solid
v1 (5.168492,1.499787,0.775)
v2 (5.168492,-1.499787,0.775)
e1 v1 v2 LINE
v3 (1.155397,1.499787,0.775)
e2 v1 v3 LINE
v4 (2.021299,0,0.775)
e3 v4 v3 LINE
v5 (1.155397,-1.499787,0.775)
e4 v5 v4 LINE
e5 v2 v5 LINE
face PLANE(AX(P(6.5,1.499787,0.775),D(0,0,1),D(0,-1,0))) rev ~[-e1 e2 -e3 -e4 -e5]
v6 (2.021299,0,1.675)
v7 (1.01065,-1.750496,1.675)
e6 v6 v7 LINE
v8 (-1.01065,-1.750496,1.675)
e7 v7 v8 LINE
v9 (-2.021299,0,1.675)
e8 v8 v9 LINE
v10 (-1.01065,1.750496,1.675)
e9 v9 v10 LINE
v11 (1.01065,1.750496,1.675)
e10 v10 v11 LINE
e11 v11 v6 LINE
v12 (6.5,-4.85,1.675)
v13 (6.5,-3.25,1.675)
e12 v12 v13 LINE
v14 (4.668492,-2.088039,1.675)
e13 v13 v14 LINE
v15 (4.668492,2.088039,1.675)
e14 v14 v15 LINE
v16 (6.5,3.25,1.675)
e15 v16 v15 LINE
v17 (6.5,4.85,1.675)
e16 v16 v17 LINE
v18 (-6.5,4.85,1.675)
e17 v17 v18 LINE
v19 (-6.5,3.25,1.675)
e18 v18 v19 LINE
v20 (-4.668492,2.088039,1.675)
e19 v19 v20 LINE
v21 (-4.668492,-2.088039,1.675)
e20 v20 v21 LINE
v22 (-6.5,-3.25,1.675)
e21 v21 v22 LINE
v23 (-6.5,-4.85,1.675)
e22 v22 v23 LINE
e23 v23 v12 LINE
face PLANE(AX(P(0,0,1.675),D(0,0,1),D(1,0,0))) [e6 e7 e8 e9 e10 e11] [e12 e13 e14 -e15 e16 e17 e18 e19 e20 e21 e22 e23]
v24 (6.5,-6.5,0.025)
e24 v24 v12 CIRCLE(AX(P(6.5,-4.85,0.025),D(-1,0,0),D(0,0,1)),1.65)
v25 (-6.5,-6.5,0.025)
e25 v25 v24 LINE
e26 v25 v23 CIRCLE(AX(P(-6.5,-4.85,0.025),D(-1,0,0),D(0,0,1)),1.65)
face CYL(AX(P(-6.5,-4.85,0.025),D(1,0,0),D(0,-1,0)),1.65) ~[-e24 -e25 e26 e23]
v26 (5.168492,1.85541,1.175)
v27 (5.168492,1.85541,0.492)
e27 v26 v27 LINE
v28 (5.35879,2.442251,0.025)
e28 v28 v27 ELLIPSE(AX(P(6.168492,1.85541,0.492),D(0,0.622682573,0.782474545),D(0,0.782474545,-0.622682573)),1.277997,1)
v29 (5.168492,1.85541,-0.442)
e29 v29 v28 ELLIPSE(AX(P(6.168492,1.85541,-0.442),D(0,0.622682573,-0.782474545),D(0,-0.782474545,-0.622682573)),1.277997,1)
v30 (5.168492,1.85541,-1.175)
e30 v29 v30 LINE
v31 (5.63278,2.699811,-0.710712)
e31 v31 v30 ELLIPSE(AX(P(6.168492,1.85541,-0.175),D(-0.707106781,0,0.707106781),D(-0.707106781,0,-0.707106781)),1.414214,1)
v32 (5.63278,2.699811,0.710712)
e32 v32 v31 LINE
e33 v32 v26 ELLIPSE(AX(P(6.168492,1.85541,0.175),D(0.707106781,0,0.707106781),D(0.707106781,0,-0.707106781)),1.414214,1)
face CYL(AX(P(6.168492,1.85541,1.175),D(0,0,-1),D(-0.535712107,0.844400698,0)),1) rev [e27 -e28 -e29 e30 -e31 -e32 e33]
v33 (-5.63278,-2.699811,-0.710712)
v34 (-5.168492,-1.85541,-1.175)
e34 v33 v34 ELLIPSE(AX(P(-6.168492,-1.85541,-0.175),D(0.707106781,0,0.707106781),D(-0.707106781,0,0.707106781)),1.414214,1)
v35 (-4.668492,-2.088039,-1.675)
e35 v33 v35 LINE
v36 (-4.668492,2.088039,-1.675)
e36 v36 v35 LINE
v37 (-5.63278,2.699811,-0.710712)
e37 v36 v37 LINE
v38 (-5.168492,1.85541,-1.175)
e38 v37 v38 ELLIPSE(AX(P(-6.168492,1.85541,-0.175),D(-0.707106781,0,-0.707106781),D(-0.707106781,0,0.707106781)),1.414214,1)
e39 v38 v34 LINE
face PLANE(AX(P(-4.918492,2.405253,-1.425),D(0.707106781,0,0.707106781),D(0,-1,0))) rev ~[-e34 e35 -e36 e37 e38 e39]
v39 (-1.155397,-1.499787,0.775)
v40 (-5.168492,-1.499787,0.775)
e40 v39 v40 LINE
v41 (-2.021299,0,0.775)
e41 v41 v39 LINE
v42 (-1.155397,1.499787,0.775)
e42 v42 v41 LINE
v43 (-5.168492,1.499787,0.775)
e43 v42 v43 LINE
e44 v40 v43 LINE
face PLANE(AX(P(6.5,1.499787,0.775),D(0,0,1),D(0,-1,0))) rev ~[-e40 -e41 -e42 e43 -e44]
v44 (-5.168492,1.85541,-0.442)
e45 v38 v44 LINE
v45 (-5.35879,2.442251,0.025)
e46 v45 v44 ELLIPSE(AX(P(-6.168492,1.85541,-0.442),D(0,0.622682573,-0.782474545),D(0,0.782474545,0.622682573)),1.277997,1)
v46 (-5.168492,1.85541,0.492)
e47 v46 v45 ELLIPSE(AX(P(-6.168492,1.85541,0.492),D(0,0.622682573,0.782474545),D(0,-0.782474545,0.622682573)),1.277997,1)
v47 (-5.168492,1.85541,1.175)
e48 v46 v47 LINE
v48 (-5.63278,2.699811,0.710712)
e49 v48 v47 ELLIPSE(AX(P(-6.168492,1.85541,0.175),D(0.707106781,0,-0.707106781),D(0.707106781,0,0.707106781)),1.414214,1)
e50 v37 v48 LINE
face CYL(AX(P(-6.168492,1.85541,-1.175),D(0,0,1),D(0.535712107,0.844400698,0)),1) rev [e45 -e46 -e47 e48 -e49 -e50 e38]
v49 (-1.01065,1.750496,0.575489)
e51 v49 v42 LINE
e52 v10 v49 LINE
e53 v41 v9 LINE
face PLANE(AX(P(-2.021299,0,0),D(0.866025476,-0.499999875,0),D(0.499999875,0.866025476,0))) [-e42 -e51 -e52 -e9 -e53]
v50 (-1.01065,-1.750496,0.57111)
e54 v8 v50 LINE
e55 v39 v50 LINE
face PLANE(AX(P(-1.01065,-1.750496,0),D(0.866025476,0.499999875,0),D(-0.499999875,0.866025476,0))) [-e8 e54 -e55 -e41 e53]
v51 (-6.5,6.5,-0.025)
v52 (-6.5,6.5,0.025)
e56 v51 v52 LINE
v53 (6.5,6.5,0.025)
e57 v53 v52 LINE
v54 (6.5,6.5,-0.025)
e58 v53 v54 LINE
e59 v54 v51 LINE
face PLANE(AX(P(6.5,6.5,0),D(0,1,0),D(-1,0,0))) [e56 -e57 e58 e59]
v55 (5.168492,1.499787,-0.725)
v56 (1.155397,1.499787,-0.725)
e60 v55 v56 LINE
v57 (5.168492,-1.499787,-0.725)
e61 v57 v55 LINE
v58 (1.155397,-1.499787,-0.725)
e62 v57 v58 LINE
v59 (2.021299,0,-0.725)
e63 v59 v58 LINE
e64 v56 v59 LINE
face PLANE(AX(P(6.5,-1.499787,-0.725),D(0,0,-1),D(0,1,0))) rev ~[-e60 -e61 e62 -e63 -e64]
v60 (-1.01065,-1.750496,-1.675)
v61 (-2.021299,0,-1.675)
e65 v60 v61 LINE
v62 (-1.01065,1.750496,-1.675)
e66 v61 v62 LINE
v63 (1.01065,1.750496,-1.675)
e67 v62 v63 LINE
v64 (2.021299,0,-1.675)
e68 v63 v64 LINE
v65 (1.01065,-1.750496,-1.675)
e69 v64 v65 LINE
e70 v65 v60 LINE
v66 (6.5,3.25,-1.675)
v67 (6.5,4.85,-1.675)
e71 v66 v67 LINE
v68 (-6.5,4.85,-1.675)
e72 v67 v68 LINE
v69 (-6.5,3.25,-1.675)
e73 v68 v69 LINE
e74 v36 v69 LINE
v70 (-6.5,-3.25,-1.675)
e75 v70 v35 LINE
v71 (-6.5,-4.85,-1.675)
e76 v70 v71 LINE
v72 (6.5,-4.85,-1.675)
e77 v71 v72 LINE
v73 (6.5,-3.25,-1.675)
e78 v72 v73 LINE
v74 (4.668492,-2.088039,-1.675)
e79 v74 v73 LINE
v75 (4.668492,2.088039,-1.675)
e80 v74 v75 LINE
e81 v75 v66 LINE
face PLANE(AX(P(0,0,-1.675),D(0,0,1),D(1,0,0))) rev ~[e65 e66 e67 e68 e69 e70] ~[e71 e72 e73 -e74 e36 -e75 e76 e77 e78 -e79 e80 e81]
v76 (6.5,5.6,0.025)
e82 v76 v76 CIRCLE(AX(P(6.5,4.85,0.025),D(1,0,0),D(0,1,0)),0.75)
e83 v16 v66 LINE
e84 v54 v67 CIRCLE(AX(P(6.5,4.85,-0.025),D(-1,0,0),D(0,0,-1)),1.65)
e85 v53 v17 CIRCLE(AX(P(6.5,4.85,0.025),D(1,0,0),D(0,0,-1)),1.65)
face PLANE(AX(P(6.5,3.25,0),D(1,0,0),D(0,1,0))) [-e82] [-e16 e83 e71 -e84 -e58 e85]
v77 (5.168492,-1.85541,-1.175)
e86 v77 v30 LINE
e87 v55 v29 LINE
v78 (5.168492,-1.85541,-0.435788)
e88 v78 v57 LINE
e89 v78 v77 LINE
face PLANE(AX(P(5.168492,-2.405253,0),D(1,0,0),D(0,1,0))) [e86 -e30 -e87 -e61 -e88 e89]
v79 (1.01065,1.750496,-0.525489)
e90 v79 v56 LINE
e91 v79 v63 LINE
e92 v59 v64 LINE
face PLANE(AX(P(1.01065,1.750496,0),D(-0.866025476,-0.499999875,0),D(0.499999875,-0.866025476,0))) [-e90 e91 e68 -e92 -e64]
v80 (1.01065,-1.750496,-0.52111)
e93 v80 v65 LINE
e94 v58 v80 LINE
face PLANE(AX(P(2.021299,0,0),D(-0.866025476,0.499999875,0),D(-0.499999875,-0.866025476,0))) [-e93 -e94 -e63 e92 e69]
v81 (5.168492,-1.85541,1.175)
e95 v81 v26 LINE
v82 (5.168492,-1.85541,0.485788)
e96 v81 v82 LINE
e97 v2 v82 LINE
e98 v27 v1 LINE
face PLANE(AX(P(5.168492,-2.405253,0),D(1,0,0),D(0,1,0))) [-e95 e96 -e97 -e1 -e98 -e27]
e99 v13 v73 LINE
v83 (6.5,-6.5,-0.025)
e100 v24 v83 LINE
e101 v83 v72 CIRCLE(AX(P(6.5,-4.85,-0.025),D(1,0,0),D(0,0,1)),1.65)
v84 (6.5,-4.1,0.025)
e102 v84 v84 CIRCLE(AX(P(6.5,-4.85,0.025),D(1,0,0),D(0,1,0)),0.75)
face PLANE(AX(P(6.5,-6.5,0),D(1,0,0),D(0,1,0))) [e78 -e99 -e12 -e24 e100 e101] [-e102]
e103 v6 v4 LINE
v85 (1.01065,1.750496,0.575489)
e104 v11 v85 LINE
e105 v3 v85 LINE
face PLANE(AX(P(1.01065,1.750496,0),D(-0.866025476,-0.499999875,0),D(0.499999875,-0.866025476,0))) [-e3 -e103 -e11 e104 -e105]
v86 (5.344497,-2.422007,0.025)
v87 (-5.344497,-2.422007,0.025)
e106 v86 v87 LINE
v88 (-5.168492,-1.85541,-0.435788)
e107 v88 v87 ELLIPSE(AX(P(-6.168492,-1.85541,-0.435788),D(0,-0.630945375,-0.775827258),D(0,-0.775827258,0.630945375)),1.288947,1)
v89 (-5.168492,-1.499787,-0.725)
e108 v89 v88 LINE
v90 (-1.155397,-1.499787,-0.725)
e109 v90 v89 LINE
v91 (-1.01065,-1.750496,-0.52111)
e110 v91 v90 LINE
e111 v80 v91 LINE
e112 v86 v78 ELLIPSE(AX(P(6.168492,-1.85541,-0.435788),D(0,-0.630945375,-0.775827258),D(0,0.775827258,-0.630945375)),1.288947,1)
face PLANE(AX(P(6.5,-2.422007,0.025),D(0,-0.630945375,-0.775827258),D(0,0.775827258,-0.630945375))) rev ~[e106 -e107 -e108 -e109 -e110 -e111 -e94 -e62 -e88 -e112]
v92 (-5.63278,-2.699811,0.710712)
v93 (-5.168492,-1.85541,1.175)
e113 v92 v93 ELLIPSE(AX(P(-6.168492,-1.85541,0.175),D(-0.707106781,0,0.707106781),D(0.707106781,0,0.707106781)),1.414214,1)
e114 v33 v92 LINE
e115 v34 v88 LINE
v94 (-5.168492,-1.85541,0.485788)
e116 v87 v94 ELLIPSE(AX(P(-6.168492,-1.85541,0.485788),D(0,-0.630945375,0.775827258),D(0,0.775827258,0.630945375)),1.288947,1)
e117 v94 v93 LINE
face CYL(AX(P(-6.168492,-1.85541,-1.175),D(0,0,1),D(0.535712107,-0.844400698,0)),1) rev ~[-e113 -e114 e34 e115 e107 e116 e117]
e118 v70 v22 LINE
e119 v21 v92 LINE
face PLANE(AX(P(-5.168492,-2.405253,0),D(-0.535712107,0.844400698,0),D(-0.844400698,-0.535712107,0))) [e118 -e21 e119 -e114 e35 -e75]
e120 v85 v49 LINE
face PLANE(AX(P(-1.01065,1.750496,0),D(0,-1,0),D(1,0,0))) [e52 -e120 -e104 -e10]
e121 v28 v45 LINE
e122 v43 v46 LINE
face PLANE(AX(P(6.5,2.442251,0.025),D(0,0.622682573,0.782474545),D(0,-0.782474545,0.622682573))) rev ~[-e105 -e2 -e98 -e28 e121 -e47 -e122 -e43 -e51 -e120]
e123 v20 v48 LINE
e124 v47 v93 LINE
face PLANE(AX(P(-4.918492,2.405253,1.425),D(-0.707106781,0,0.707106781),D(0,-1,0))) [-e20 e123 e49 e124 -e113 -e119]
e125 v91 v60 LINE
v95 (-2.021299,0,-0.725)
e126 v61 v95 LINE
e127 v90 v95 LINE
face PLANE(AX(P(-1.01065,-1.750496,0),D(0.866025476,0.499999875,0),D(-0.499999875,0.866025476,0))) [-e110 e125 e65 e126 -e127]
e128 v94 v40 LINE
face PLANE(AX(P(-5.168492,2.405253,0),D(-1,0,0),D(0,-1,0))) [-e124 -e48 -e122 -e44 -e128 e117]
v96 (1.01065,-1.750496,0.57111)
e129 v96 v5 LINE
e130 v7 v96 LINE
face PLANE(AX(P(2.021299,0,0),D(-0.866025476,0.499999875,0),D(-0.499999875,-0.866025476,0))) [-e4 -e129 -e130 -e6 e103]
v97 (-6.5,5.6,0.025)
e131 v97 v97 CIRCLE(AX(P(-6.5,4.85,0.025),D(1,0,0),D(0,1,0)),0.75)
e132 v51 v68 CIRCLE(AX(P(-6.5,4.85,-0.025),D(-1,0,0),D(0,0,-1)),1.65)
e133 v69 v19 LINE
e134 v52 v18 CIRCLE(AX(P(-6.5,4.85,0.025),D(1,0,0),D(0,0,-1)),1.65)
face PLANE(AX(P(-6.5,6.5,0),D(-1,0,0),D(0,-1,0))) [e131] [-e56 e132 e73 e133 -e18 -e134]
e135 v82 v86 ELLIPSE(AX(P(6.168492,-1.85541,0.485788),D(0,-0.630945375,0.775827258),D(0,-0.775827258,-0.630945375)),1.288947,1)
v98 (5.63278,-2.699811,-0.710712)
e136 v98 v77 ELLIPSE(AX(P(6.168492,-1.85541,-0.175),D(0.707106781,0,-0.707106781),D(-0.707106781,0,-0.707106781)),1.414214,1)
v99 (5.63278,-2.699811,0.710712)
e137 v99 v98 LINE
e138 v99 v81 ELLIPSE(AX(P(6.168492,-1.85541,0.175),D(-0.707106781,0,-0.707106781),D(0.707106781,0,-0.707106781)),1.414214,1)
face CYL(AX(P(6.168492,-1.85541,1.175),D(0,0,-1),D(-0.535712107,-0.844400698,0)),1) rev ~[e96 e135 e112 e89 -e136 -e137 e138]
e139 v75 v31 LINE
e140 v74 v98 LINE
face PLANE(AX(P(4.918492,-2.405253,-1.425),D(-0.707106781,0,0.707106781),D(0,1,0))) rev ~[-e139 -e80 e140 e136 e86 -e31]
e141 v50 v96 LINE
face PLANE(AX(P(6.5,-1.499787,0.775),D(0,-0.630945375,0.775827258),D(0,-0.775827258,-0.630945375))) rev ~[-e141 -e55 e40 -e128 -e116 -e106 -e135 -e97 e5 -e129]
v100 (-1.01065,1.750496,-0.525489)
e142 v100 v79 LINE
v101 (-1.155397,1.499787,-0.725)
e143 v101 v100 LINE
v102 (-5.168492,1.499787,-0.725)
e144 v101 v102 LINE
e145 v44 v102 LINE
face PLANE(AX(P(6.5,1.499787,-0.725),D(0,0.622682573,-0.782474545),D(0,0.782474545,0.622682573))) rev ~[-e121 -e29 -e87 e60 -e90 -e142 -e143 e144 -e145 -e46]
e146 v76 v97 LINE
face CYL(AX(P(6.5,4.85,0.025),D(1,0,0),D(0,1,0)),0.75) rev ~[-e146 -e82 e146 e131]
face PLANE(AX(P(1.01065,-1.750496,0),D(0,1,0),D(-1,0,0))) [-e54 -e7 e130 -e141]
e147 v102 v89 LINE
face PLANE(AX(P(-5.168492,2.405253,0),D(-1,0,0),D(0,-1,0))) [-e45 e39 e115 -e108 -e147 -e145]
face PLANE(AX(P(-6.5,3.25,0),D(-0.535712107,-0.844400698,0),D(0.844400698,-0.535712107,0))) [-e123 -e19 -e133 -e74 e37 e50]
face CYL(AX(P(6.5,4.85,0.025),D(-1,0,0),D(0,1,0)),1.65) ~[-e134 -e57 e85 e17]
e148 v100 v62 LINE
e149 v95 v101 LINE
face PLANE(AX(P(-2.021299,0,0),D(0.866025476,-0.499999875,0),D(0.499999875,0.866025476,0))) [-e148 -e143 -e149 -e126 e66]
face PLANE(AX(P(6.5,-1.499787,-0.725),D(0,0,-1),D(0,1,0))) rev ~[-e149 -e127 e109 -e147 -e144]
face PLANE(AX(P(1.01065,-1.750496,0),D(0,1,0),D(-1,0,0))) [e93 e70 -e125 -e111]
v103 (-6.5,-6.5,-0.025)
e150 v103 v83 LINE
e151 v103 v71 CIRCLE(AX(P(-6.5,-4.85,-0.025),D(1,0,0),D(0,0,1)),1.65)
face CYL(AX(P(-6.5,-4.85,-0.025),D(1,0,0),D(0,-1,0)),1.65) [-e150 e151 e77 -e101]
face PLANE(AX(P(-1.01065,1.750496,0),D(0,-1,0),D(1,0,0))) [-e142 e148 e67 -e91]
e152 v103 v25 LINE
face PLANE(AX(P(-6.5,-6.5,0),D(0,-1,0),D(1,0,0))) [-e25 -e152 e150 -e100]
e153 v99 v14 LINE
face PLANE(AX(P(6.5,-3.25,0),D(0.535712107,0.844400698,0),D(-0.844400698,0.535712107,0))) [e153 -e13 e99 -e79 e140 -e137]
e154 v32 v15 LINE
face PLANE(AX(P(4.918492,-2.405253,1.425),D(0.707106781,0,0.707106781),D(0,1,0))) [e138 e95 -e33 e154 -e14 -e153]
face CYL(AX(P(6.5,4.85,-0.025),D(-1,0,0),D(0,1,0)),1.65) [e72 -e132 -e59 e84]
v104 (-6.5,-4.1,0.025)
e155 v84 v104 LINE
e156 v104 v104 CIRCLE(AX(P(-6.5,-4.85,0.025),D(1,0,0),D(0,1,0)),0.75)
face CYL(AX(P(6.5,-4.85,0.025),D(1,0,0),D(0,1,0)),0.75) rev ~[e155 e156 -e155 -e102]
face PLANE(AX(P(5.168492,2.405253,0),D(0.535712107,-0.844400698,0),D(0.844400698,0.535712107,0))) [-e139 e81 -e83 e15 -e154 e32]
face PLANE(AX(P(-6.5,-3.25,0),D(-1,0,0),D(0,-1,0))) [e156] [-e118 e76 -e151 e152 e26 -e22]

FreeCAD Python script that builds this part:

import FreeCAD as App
import Part
import Sketcher

V = App.Vector
Q = App.Units.Quantity


def edges_at(feature, points):
    """Names of the edges that pass closest to the given points."""
    edges = feature.Shape.Edges
    near = lambda p: min(range(len(edges)), key=lambda i: edges[i].distToShape(Part.Vertex(*p))[0])
    return sorted({f"Edge{near(p) + 1}" for p in points})

doc = App.newDocument("Part")
params = doc.addObject("Spreadsheet::Sheet", "Params")
for row, (alias, value) in enumerate([
    ("sketch1_width", "13 mm"),
    ("sketch1_height", "3.25 mm"),
    ("pad1_length", "3.35 mm"),
    ("chamfer_size", "0.5 mm"),
    ("fillet_radius", "1.65 mm"),
    ("fillet2_radius", "1 mm"),
    ("sketch2_diameter", "1.5 mm"),
], start=1):
    params.set(f"A{row}", alias)
    params.set(f"B{row}", "=" + value)
    params.setAlias(f"B{row}", alias)

body = doc.addObject("PartDesign::Body", "Body")

sketch1 = doc.addObject("Sketcher::SketchObject", "Sketch")
body.addObject(sketch1)
sketch1.AttachmentSupport = (doc.XY_Plane, [""])
sketch1.MapMode = "FlatFace"
sketch1.addGeometry(Part.LineSegment(V(6.5, 6.5, 0), V(-6.5, 6.5, 0)), False)
sketch1.addGeometry(Part.LineSegment(V(-6.5, 6.5, 0), V(-6.5, 3.2, 0)), False)
sketch1.addGeometry(Part.LineSegment(V(-6.5, 3.2, 0), V(-5.2, 2.4, 0)), False)
sketch1.addGeometry(Part.LineSegment(V(-5.2, 2.4, 0), V(-5.2, -2.4, 0)), False)
sketch1.addGeometry(Part.LineSegment(V(-5.2, -2.4, 0), V(-6.5, -3.2, 0)), False)
sketch1.addGeometry(Part.LineSegment(V(-6.5, -3.2, 0), V(-6.5, -6.5, 0)), False)
sketch1.addGeometry(Part.LineSegment(V(-6.5, -6.5, 0), V(6.5, -6.5, 0)), False)
sketch1.addGeometry(Part.LineSegment(V(6.5, -6.5, 0), V(6.5, -3.2, 0)), False)
sketch1.addGeometry(Part.LineSegment(V(6.5, -3.2, 0), V(5.2, -2.4, 0)), False)
sketch1.addGeometry(Part.LineSegment(V(5.2, -2.4, 0), V(5.2, 2.4, 0)), False)
sketch1.addGeometry(Part.LineSegment(V(5.2, 2.4, 0), V(6.5, 3.2, 0)), False)
sketch1.addGeometry(Part.LineSegment(V(6.5, 3.2, 0), V(6.5, 6.5, 0)), False)
sketch1.addGeometry(Part.LineSegment(V(-1, -1.8, 0), V(-2, 0, 0)), False)
sketch1.addGeometry(Part.LineSegment(V(-2, 0, 0), V(-1, 1.8, 0)), False)
sketch1.addGeometry(Part.LineSegment(V(-1, 1.8, 0), V(1, 1.8, 0)), False)
sketch1.addGeometry(Part.LineSegment(V(1, 1.8, 0), V(2, 0, 0)), False)
sketch1.addGeometry(Part.LineSegment(V(2, 0, 0), V(1, -1.8, 0)), False)
sketch1.addGeometry(Part.LineSegment(V(1, -1.8, 0), V(-1, -1.8, 0)), False)
sketch1.addConstraint(Sketcher.Constraint("Coincident", 0, 2, 1, 1))
sketch1.addConstraint(Sketcher.Constraint("Coincident", 1, 2, 2, 1))
sketch1.addConstraint(Sketcher.Constraint("Coincident", 2, 2, 3, 1))
sketch1.addConstraint(Sketcher.Constraint("Coincident", 3, 2, 4, 1))
sketch1.addConstraint(Sketcher.Constraint("Coincident", 4, 2, 5, 1))
sketch1.addConstraint(Sketcher.Constraint("Coincident", 5, 2, 6, 1))
sketch1.addConstraint(Sketcher.Constraint("Coincident", 6, 2, 7, 1))
sketch1.addConstraint(Sketcher.Constraint("Coincident", 7, 2, 8, 1))
sketch1.addConstraint(Sketcher.Constraint("Coincident", 8, 2, 9, 1))
sketch1.addConstraint(Sketcher.Constraint("Coincident", 9, 2, 10, 1))
sketch1.addConstraint(Sketcher.Constraint("Coincident", 10, 2, 11, 1))
sketch1.addConstraint(Sketcher.Constraint("Coincident", 11, 2, 0, 1))
sketch1.addConstraint(Sketcher.Constraint("Coincident", 12, 2, 13, 1))
sketch1.addConstraint(Sketcher.Constraint("Coincident", 13, 2, 14, 1))
sketch1.addConstraint(Sketcher.Constraint("Coincident", 14, 2, 15, 1))
sketch1.addConstraint(Sketcher.Constraint("Coincident", 15, 2, 16, 1))
sketch1.addConstraint(Sketcher.Constraint("Coincident", 16, 2, 17, 1))
sketch1.addConstraint(Sketcher.Constraint("Coincident", 17, 2, 12, 1))
sketch1.addConstraint(Sketcher.Constraint("Horizontal", 0))
sketch1.addConstraint(Sketcher.Constraint("Vertical", 1))
sketch1.addConstraint(Sketcher.Constraint("Vertical", 3))
sketch1.addConstraint(Sketcher.Constraint("Vertical", 5))
sketch1.addConstraint(Sketcher.Constraint("Horizontal", 6))
sketch1.addConstraint(Sketcher.Constraint("Vertical", 7))
sketch1.addConstraint(Sketcher.Constraint("Vertical", 9))
sketch1.addConstraint(Sketcher.Constraint("Vertical", 11))
sketch1.addConstraint(Sketcher.Constraint("Horizontal", 14))
sketch1.addConstraint(Sketcher.Constraint("Horizontal", 17))
sketch1.addConstraint(Sketcher.Constraint("Symmetric", 0, 2, 6, 2, -1, 1))
sketch1.addConstraint(Sketcher.Constraint("Symmetric", 2, 2, 8, 2, -1, 1))
sketch1.addConstraint(Sketcher.Constraint("Symmetric", 4, 2, 10, 2, -1, 1))
sketch1.addConstraint(Sketcher.Constraint("Symmetric", 12, 2, 15, 2, -1, 1))
sketch1.addConstraint(Sketcher.Constraint("Symmetric", 13, 2, 16, 2, -1, 1))
sketch1.addConstraint(Sketcher.Constraint("Symmetric", 4, 2, 7, 2, -2))
sketch1.addConstraint(Sketcher.Constraint("PointOnObject", 12, 2, -1))
sketch1.addConstraint(Sketcher.Constraint("Parallel", 2, 8))
sketch1.addConstraint(Sketcher.Constraint("Parallel", 4, 10))
sketch1.addConstraint(Sketcher.Constraint("Parallel", 12, 15))
sketch1.addConstraint(Sketcher.Constraint("Horizontal", 3, 2, 8, 2))
sketch1.addConstraint(Sketcher.Constraint("Vertical", 14, 2, 16, 2))
sketch1.addConstraint(Sketcher.Constraint("DistanceX", 0, 2, 0, 1, Q("13 mm")))
sketch1.addConstraint(Sketcher.Constraint("Angle", 12, Q("119.999992 deg")))
sketch1.addConstraint(Sketcher.Constraint("DistanceY", 5, 2, 0, 2, Q("13 mm")))
sketch1.addConstraint(Sketcher.Constraint("DistanceY", 1, 2, 1, 1, Q("3.25 mm")))
sketch1.addConstraint(Sketcher.Constraint("DistanceX", 14, 1, 14, 2, Q("2.0213 mm")))
sketch1.addConstraint(Sketcher.Constraint("Distance", 12, Q("2.021299 mm")))
sketch1.addConstraint(Sketcher.Constraint("DistanceY", 3, 2, 3, 1, Q("4.810506 mm")))
sketch1.addConstraint(Sketcher.Constraint("DistanceX", 2, 2, -1, 1, Q("5.168492 mm")))
sketch1.setExpression("Constraints[40]", "Params.sketch1_width")
sketch1.setExpression("Constraints[43]", "Params.sketch1_height")
pad1 = doc.addObject("PartDesign::Pad", "Pad")
body.addObject(pad1)
pad1.Profile = sketch1
pad1.setExpression("Length", "Params.pad1_length")
pad1.Midplane = True
doc.recompute()

chamfer = doc.addObject("PartDesign::Chamfer", "Chamfer")
body.addObject(chamfer)
chamfer.Base = (pad1, edges_at(pad1, [
    (-5.168, 0, 1.675),
    (5.168, 0, 1.675),
    (-5.168, 0, -1.675),
    (5.168, 0, -1.675),
]))
chamfer.setExpression("Size", "Params.chamfer_size")
doc.recompute()

fillet = doc.addObject("PartDesign::Fillet", "Fillet")
body.addObject(fillet)
fillet.Base = (chamfer, edges_at(chamfer, [
    (0, 6.5, 1.675),
    (0, 6.5, -1.675),
    (0, -6.5, 1.675),
    (0, -6.5, -1.675),
]))
fillet.setExpression("Radius", "Params.fillet_radius")
doc.recompute()

fillet2 = doc.addObject("PartDesign::Fillet", "Fillet001")
body.addObject(fillet2)
fillet2.Base = (fillet, edges_at(fillet, [
    (5.168, 2.405, 0),
    (5.168, -2.405, 0),
    (-5.168, -2.405, 0),
    (-5.168, 2.405, 0),
]))
fillet2.setExpression("Radius", "Params.fillet2_radius")

sketch2 = doc.addObject("Sketcher::SketchObject", "Sketch001")
body.addObject(sketch2)
sketch2.AttachmentSupport = (doc.YZ_Plane, [""])
sketch2.MapMode = "FlatFace"
sketch2.AttachmentOffset = App.Placement(V(0, 0, 6.5), App.Rotation())
sketch2.addGeometry(Part.Circle(V(-4.8, 0, 0), V(0, 0, 1), 0.8), False)
sketch2.addGeometry(Part.Circle(V(4.8, 0, 0), V(0, 0, 1), 0.8), False)
sketch2.addGeometry(Part.LineSegment(V(-1.5, 0.8, 0), V(-2.4, 0, 0)), False)
sketch2.addGeometry(Part.LineSegment(V(-2.4, 0, 0), V(-1.5, -0.7, 0)), False)
sketch2.addGeometry(Part.LineSegment(V(-1.5, -0.7, 0), V(1.5, -0.7, 0)), False)
sketch2.addGeometry(Part.LineSegment(V(1.5, -0.7, 0), V(2.4, 0, 0)), False)
sketch2.addGeometry(Part.LineSegment(V(2.4, 0, 0), V(1.5, 0.8, 0)), False)
sketch2.addGeometry(Part.LineSegment(V(1.5, 0.8, 0), V(-1.5, 0.8, 0)), False)
sketch2.addConstraint(Sketcher.Constraint("Coincident", 2, 2, 3, 1))
sketch2.addConstraint(Sketcher.Constraint("Coincident", 3, 2, 4, 1))
sketch2.addConstraint(Sketcher.Constraint("Coincident", 4, 2, 5, 1))
sketch2.addConstraint(Sketcher.Constraint("Coincident", 5, 2, 6, 1))
sketch2.addConstraint(Sketcher.Constraint("Coincident", 6, 2, 7, 1))
sketch2.addConstraint(Sketcher.Constraint("Coincident", 7, 2, 2, 1))
sketch2.addConstraint(Sketcher.Constraint("Horizontal", 4))
sketch2.addConstraint(Sketcher.Constraint("Horizontal", 7))
sketch2.addConstraint(Sketcher.Constraint("Equal", 0, 1))
sketch2.addConstraint(Sketcher.Constraint("Symmetric", 0, 3, 1, 3, -2))
sketch2.addConstraint(Sketcher.Constraint("Horizontal", 1, 3, 2, 2))
sketch2.addConstraint(Sketcher.Constraint("Horizontal", 2, 2, 5, 2))
sketch2.addConstraint(Sketcher.Constraint("Vertical", 4, 2, 6, 2))
sketch2.addConstraint(Sketcher.Constraint("Vertical", 3, 2, 7, 2))
sketch2.addConstraint(Sketcher.Constraint("Equal", 2, 3))
sketch2.addConstraint(Sketcher.Constraint("Diameter", 0, Q("1.5 mm")))
sketch2.addConstraint(Sketcher.Constraint("DistanceX", 0, 3, 1, 3, Q("9.7 mm")))
sketch2.addConstraint(Sketcher.Constraint("DistanceY", 4, 2, 6, 2, Q("1.5 mm")))
sketch2.addConstraint(Sketcher.Constraint("DistanceY", -1, 1, 0, 3, Q("0.025 mm")))
sketch2.addConstraint(Sketcher.Constraint("DistanceX", 4, 1, 4, 2, Q("2.999574 mm")))
sketch2.addConstraint(Sketcher.Constraint("DistanceX", -1, 1, 5, 2, Q("2.442251 mm")))
sketch2.addConstraint(Sketcher.Constraint("DistanceX", 2, 2, 3, 2, Q("0.92222 mm")))
sketch2.addConstraint(Sketcher.Constraint("DistanceX", 3, 2, 5, 2, Q("3.942038 mm")))
sketch2.setExpression("Constraints[15]", "Params.sketch2_diameter")
pocket1 = doc.addObject("PartDesign::Pocket", "Pocket")
body.addObject(pocket1)
pocket1.Profile = sketch2
pocket1.Type = "ThroughAll"

doc.recompute()
